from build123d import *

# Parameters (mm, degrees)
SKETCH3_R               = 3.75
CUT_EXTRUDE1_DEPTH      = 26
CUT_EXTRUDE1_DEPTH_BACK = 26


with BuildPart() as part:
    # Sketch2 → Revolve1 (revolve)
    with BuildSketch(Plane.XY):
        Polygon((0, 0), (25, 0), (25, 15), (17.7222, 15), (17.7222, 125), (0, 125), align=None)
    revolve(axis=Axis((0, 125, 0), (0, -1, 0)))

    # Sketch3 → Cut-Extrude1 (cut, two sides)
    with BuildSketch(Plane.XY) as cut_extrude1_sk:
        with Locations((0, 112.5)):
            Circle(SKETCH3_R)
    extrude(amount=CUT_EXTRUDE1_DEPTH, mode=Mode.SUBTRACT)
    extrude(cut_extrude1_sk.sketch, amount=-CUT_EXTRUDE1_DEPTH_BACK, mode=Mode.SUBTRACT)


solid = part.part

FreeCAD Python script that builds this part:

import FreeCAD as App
import Part
import Sketcher
from FreeCAD import Vector


def add_polygon(sketch, points):
    """Adds a closed chain of lines whose ends are joined by coincident constraints."""
    first, n = sketch.GeometryCount, len(points)
    for a, b in zip(points, points[1:] + points[:1]):
        sketch.addGeometry(Part.LineSegment(App.Vector(*a, 0), App.Vector(*b, 0)), False)
    for i in range(n):
        sketch.addConstraint(Sketcher.Constraint("Coincident", first + i, 2, first + (i + 1) % n, 1))

doc = App.newDocument("Part")
body = doc.addObject("PartDesign::Body", "Body")

# Sketch on XY plane
sketch1 = body.newObject("Sketcher::SketchObject", "Sketch")
sketch1.AttachmentSupport = (doc.getObject("XY_Plane"), [""])
sketch1.MapMode = "FlatFace"
add_polygon(sketch1, [(0, 0), (25, 0), (25, 15), (18, 15), (18, 125), (0, 125)])  # lines 0-5
sketch1.addConstraint([
    Sketcher.Constraint("Horizontal", 0),
    Sketcher.Constraint("Vertical", 1),
    Sketcher.Constraint("Horizontal", 2),
    Sketcher.Constraint("Vertical", 3),
    Sketcher.Constraint("Horizontal", 4),
    Sketcher.Constraint("Vertical", 5),
    Sketcher.Constraint("Coincident", 5, 2, -1, 1),
    Sketcher.Constraint("DistanceX", 0, 1, 0, 2, 25.0),
    Sketcher.Constraint("DistanceY", 1, 1, 1, 2, 15.0),
    Sketcher.Constraint("DistanceY", 3, 1, 3, 2, 110.0),
    Sketcher.Constraint("DistanceX", 2, 2, 2, 1, 7.2778),
])
revolution = body.newObject("PartDesign::Revolution", "Revolution")
revolution.Profile = sketch1
revolution.ReferenceAxis = (sketch1, ["V_Axis"])
revolution.Angle = 360

# Sketch on XY plane
sketch2 = body.newObject("Sketcher::SketchObject", "Sketch001")
sketch2.AttachmentSupport = (doc.getObject("XY_Plane"), [""])
sketch2.MapMode = "FlatFace"
sketch2.addGeometry(Part.Circle(Vector(0, 112.5, 0), Vector(0, 0, 1), 3.8), False)
sketch2.addConstraint([
    Sketcher.Constraint("PointOnObject", 0, 3, -2),
    Sketcher.Constraint("Diameter", 0, 7.5),
    Sketcher.Constraint("DistanceY", -1, 1, 0, 3, 112.5),
])
pocket1 = body.newObject("PartDesign::Pocket", "Pocket")
pocket1.Profile = sketch2
pocket1.Type = "ThroughAll"
pocket1.Midplane = True

doc.recompute()
